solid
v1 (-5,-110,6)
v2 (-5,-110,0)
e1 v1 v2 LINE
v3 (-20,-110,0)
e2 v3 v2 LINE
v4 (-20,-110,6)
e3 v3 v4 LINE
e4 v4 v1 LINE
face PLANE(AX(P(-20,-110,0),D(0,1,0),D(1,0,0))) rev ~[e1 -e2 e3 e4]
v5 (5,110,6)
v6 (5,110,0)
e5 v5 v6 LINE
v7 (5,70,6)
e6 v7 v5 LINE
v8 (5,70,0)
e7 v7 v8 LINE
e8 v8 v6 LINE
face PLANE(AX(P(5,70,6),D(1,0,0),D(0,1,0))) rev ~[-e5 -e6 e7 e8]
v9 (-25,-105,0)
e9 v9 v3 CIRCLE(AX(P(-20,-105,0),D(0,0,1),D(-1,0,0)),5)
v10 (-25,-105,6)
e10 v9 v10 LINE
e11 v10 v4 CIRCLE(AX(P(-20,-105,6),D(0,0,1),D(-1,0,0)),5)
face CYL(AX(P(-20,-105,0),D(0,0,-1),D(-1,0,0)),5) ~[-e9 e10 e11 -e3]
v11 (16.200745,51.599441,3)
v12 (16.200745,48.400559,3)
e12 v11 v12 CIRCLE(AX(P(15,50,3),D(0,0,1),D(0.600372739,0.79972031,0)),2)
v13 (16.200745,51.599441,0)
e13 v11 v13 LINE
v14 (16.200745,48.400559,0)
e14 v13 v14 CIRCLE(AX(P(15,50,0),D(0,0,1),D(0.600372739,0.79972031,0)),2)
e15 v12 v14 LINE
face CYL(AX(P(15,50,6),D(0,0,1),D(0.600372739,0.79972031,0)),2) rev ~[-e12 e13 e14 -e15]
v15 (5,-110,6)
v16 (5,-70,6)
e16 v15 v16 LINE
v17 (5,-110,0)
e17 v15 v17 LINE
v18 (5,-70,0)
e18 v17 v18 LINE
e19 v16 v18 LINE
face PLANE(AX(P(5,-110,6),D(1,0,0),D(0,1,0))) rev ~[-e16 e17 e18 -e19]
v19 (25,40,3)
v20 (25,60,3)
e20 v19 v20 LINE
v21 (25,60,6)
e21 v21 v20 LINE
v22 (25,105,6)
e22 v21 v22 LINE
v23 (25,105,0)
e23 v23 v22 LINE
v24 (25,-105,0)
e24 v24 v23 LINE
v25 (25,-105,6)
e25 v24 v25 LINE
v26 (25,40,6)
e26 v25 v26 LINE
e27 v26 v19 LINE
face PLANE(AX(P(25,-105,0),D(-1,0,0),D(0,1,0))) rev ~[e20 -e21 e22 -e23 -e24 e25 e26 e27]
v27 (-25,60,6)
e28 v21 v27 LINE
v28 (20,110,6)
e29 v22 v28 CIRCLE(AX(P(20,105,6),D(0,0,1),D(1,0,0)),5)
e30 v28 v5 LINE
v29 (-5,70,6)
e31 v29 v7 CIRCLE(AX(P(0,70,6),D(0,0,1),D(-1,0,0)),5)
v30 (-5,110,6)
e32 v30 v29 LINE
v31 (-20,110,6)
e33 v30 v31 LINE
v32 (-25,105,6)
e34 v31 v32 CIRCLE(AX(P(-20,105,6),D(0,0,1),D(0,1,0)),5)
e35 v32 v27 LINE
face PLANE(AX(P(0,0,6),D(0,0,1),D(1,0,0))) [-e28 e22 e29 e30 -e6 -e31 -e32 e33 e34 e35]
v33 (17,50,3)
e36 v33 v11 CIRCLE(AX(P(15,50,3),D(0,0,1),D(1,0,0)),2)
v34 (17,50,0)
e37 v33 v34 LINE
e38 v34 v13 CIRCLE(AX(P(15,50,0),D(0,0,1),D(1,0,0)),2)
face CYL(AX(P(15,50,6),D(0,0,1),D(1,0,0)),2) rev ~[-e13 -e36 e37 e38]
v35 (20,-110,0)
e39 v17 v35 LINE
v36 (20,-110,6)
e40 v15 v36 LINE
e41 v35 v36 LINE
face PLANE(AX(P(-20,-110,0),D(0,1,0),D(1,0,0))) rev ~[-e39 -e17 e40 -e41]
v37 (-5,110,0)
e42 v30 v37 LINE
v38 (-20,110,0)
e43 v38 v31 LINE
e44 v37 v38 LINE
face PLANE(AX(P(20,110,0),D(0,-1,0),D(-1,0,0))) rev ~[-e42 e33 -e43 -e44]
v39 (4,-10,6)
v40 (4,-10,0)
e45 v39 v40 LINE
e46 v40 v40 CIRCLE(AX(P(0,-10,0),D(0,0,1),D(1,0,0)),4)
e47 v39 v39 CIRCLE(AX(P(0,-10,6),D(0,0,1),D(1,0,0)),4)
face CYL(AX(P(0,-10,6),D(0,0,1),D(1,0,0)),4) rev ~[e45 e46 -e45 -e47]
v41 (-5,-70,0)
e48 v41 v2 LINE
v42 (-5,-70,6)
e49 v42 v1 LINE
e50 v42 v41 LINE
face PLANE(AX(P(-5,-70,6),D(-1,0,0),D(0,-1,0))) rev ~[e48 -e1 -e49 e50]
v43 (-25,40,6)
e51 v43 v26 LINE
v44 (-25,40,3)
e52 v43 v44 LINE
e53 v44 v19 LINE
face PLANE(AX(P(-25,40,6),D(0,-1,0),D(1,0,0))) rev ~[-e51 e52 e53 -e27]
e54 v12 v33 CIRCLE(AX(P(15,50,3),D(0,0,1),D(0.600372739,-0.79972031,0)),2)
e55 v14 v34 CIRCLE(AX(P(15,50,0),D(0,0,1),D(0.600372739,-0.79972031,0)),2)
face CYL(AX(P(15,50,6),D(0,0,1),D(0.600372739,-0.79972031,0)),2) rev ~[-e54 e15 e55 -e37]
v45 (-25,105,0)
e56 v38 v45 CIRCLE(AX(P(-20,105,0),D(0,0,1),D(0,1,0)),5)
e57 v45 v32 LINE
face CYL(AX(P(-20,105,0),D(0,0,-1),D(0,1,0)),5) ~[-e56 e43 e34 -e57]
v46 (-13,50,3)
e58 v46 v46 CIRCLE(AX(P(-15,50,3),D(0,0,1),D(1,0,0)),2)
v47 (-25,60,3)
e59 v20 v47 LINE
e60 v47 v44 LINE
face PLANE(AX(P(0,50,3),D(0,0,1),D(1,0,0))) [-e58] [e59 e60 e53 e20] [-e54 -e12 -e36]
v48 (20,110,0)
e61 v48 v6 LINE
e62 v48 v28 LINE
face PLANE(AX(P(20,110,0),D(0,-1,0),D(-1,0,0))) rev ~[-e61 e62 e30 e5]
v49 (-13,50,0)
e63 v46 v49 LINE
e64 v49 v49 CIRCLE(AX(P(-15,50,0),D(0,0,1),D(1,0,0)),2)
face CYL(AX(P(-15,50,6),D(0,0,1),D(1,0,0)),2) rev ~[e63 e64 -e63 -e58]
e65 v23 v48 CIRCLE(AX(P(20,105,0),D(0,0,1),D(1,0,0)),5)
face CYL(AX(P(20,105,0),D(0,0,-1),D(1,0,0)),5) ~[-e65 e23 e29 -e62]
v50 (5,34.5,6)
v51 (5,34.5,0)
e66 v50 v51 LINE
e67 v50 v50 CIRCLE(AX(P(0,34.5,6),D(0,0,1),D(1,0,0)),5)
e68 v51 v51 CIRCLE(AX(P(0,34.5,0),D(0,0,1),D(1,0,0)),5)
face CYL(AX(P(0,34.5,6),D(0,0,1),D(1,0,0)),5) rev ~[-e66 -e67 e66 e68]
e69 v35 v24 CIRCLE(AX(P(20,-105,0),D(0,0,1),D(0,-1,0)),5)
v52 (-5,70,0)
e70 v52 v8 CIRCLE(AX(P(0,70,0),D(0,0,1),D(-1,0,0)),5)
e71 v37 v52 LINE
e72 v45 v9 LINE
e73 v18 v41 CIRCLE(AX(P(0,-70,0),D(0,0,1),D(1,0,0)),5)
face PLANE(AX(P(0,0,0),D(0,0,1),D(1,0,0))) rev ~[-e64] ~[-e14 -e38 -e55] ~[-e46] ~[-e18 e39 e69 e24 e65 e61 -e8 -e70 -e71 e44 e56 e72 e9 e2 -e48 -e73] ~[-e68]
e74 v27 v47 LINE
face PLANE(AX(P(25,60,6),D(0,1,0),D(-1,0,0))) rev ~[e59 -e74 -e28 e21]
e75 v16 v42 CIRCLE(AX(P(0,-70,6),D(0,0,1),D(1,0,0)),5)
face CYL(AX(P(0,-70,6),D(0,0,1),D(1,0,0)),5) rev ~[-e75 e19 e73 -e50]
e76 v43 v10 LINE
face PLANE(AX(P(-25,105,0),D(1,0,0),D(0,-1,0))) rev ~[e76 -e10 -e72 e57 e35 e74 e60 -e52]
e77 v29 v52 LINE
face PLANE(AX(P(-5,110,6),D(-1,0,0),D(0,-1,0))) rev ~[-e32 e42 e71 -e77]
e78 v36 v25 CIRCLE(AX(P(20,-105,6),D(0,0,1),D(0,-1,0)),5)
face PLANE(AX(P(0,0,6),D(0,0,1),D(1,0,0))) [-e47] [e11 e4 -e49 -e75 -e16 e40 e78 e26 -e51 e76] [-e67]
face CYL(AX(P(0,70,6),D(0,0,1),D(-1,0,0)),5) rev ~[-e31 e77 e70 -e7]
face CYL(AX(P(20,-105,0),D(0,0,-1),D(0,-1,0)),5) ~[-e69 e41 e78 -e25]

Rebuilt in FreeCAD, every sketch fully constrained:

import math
import FreeCAD as App
import Part
import Sketcher
from FreeCAD import Vector
Q = App.Units.Quantity


def add_polygon(sketch, points):
    """Adds a closed chain of lines whose ends are joined by coincident constraints."""
    first, n = sketch.GeometryCount, len(points)
    for a, b in zip(points, points[1:] + points[:1]):
        sketch.addGeometry(Part.LineSegment(App.Vector(*a, 0), App.Vector(*b, 0)), False)
    for i in range(n):
        sketch.addConstraint(Sketcher.Constraint("Coincident", first + i, 2, first + (i + 1) % n, 1))

doc = App.newDocument("Part")
body = doc.addObject("PartDesign::Body", "Body")

sketch1 = body.newObject("Sketcher::SketchObject", "Sketch")
sketch1.AttachmentSupport = (doc.getObject("XY_Plane"), [""])
sketch1.MapMode = "FlatFace"
sketch1.addGeometry(Part.LineSegment(Vector(20, 110, 0), Vector(-20, 110, 0)), False)
sketch1.addGeometry(Part.ArcOfCircle(Part.Circle(Vector(-20, 105, 0), Vector(0, 0, 1), 5), math.radians(90), math.radians(180)), False)
sketch1.addGeometry(Part.LineSegment(Vector(-25, 105, 0), Vector(-25, -105, 0)), False)
sketch1.addGeometry(Part.ArcOfCircle(Part.Circle(Vector(-20, -105, 0), Vector(0, 0, 1), 5), math.radians(180), math.radians(270)), False)
sketch1.addGeometry(Part.LineSegment(Vector(-20, -110, 0), Vector(20, -110, 0)), False)
sketch1.addGeometry(Part.ArcOfCircle(Part.Circle(Vector(20, -105, 0), Vector(0, 0, 1), 5), math.radians(-90), math.radians(0)), False)
sketch1.addGeometry(Part.LineSegment(Vector(25, -105, 0), Vector(25, 105, 0)), False)
sketch1.addGeometry(Part.ArcOfCircle(Part.Circle(Vector(20, 105, 0), Vector(0, 0, 1), 5), math.radians(0), math.radians(90)), False)
sketch1.addConstraint(Sketcher.Constraint("Tangent", 0, 2, 1, 1))
sketch1.addConstraint(Sketcher.Constraint("Tangent", 1, 2, 2, 1))
sketch1.addConstraint(Sketcher.Constraint("Tangent", 2, 2, 3, 1))
sketch1.addConstraint(Sketcher.Constraint("Tangent", 3, 2, 4, 1))
sketch1.addConstraint(Sketcher.Constraint("Tangent", 4, 2, 5, 1))
sketch1.addConstraint(Sketcher.Constraint("Tangent", 5, 2, 6, 1))
sketch1.addConstraint(Sketcher.Constraint("Tangent", 6, 2, 7, 1))
sketch1.addConstraint(Sketcher.Constraint("Tangent", 7, 2, 0, 1))
sketch1.addConstraint(Sketcher.Constraint("Horizontal", 0))
sketch1.addConstraint(Sketcher.Constraint("Vertical", 2))
sketch1.addConstraint(Sketcher.Constraint("Horizontal", 4))
sketch1.addConstraint(Sketcher.Constraint("Vertical", 6))
sketch1.addConstraint(Sketcher.Constraint("Equal", 1, 3))
sketch1.addConstraint(Sketcher.Constraint("Equal", 3, 5))
sketch1.addConstraint(Sketcher.Constraint("Equal", 5, 7))
sketch1.addConstraint(Sketcher.Constraint("Symmetric", 1, 3, 5, 3, -1, 1))
sketch1.addConstraint(Sketcher.Constraint("Radius", 1, Q("5 mm")))
sketch1.addConstraint(Sketcher.Constraint("DistanceX", 0, 2, 0, 1, Q("40 mm")))
sketch1.addConstraint(Sketcher.Constraint("DistanceY", 2, 2, 2, 1, Q("210 mm")))
pad1 = body.newObject("PartDesign::Pad", "Pad")
pad1.Profile = sketch1
pad1.Length = 6

sketch2 = body.newObject("Sketcher::SketchObject", "Sketch001")
sketch2.AttachmentSupport = (doc.getObject("XY_Plane"), [""])
sketch2.MapMode = "FlatFace"
sketch2.AttachmentOffset = App.Placement(Vector(0, 0, 6), App.Rotation())
sketch2.addGeometry(Part.LineSegment(Vector(-5, -110, 0), Vector(5, -110, 0)), False)
sketch2.addGeometry(Part.LineSegment(Vector(5, -110, 0), Vector(5, -70, 0)), False)
sketch2.addGeometry(Part.ArcOfCircle(Part.Circle(Vector(0, -70, 0), Vector(0, 0, 1), 5), math.radians(0), math.radians(180)), False)
sketch2.addGeometry(Part.LineSegment(Vector(-5, -70, 0), Vector(-5, -110, 0)), False)
sketch2.addGeometry(Part.Circle(Vector(0, -10, 0), Vector(0, 0, 1), 4), False)
sketch2.addGeometry(Part.Circle(Vector(0, 34.5, 0), Vector(0, 0, 1), 5), False)
sketch2.addGeometry(Part.Circle(Vector(-15, 50, 0), Vector(0, 0, 1), 2), False)
sketch2.addGeometry(Part.ArcOfCircle(Part.Circle(Vector(15, 50, 0), Vector(0, 0, 1), 2), math.radians(53), math.radians(307)), False)
sketch2.addGeometry(Part.ArcOfCircle(Part.Circle(Vector(15, 50, 0), Vector(0, 0, 1), 2), math.radians(-53), math.radians(0)), False)
sketch2.addGeometry(Part.ArcOfCircle(Part.Circle(Vector(15, 50, 0), Vector(0, 0, 1), 2), math.radians(0), math.radians(53)), False)
sketch2.addGeometry(Part.LineSegment(Vector(5, 70, 0), Vector(5, 110, 0)), False)
sketch2.addGeometry(Part.LineSegment(Vector(5, 110, 0), Vector(-5, 110, 0)), False)
sketch2.addGeometry(Part.LineSegment(Vector(-5, 110, 0), Vector(-5, 70, 0)), False)
sketch2.addGeometry(Part.ArcOfCircle(Part.Circle(Vector(0, 70, 0), Vector(0, 0, 1), 5), math.radians(180), math.radians(360)), False)
sketch2.addConstraint(Sketcher.Constraint("Coincident", 0, 2, 1, 1))
sketch2.addConstraint(Sketcher.Constraint("Tangent", 1, 2, 2, 1))
sketch2.addConstraint(Sketcher.Constraint("Tangent", 2, 2, 3, 1))
sketch2.addConstraint(Sketcher.Constraint("Coincident", 3, 2, 0, 1))
sketch2.addConstraint(Sketcher.Constraint("Tangent", 7, 2, 8, 1))
sketch2.addConstraint(Sketcher.Constraint("Tangent", 8, 2, 9, 1))
sketch2.addConstraint(Sketcher.Constraint("Tangent", 9, 2, 7, 1))
sketch2.addConstraint(Sketcher.Constraint("Coincident", 10, 2, 11, 1))
sketch2.addConstraint(Sketcher.Constraint("Coincident", 11, 2, 12, 1))
sketch2.addConstraint(Sketcher.Constraint("Tangent", 12, 2, 13, 1))
sketch2.addConstraint(Sketcher.Constraint("Tangent", 13, 2, 10, 1))
sketch2.addConstraint(Sketcher.Constraint("Horizontal", 0))
sketch2.addConstraint(Sketcher.Constraint("Vertical", 1))
sketch2.addConstraint(Sketcher.Constraint("Vertical", 3))
sketch2.addConstraint(Sketcher.Constraint("Vertical", 10))
sketch2.addConstraint(Sketcher.Constraint("Horizontal", 11))
sketch2.addConstraint(Sketcher.Constraint("Vertical", 12))
sketch2.addConstraint(Sketcher.Constraint("Equal", 2, 5))
sketch2.addConstraint(Sketcher.Constraint("Equal", 6, 7))
sketch2.addConstraint(Sketcher.Constraint("Equal", 5, 13))
sketch2.addConstraint(Sketcher.Constraint("Symmetric", 2, 3, 13, 3, -1, 1))
sketch2.addConstraint(Sketcher.Constraint("Symmetric", 6, 3, 7, 3, -2))
sketch2.addConstraint(Sketcher.Constraint("Symmetric", 0, 2, 10, 2, -1))
sketch2.addConstraint(Sketcher.Constraint("PointOnObject", 4, 3, -2))
sketch2.addConstraint(Sketcher.Constraint("PointOnObject", 5, 3, -2))
sketch2.addConstraint(Sketcher.Constraint("Horizontal", 9, 3, 8, 2))
sketch2.addConstraint(Sketcher.Constraint("Vertical", 7, 2, 9, 2))
sketch2.addConstraint(Sketcher.Constraint("Diameter", 4, Q("8 mm")))
sketch2.addConstraint(Sketcher.Constraint("Diameter", 5, Q("10 mm")))
sketch2.addConstraint(Sketcher.Constraint("Diameter", 6, Q("4 mm")))
sketch2.addConstraint(Sketcher.Constraint("DistanceY", 1, 1, 1, 2, Q("40 mm")))
sketch2.addConstraint(Sketcher.Constraint("DistanceY", 2, 3, -1, 1, Q("70 mm")))
sketch2.addConstraint(Sketcher.Constraint("DistanceY", 4, 3, -1, 1, Q("10 mm")))
sketch2.addConstraint(Sketcher.Constraint("DistanceX", 6, 3, -1, 1, Q("15 mm")))
sketch2.addConstraint(Sketcher.Constraint("DistanceY", -1, 1, 6, 3, Q("50 mm")))
sketch2.addConstraint(Sketcher.Constraint("DistanceY", -1, 1, 5, 3, Q("34.5 mm")))
sketch2.addConstraint(Sketcher.Constraint("DistanceY", -1, 1, 7, 2, Q("48.400559 mm")))
pocket1 = body.newObject("PartDesign::Pocket", "Pocket")
pocket1.Profile = sketch2
pocket1.Length = 25

sketch3 = body.newObject("Sketcher::SketchObject", "Sketch002")
sketch3.AttachmentSupport = (doc.getObject("XY_Plane"), [""])
sketch3.MapMode = "FlatFace"
sketch3.AttachmentOffset = App.Placement(Vector(0, 0, 6), App.Rotation())
add_polygon(sketch3, [(25, 60), (-25, 60), (-25, 40), (25, 40)])
sketch3.addConstraint(Sketcher.Constraint("Horizontal", 0))
sketch3.addConstraint(Sketcher.Constraint("Vertical", 1))
sketch3.addConstraint(Sketcher.Constraint("Horizontal", 2))
sketch3.addConstraint(Sketcher.Constraint("Vertical", 3))
sketch3.addConstraint(Sketcher.Constraint("DistanceX", 0, 2, 0, 1, Q("50 mm")))
sketch3.addConstraint(Sketcher.Constraint("DistanceY", 1, 2, 1, 1, Q("20 mm")))
sketch3.addConstraint(Sketcher.Constraint("DistanceX", 0, 2, -1, 1, Q("25 mm")))
sketch3.addConstraint(Sketcher.Constraint("DistanceY", -1, 1, 0, 2, Q("60 mm")))
pocket2 = body.newObject("PartDesign::Pocket", "Pocket001")
pocket2.Profile = sketch3
pocket2.Length = 3

doc.recompute()
